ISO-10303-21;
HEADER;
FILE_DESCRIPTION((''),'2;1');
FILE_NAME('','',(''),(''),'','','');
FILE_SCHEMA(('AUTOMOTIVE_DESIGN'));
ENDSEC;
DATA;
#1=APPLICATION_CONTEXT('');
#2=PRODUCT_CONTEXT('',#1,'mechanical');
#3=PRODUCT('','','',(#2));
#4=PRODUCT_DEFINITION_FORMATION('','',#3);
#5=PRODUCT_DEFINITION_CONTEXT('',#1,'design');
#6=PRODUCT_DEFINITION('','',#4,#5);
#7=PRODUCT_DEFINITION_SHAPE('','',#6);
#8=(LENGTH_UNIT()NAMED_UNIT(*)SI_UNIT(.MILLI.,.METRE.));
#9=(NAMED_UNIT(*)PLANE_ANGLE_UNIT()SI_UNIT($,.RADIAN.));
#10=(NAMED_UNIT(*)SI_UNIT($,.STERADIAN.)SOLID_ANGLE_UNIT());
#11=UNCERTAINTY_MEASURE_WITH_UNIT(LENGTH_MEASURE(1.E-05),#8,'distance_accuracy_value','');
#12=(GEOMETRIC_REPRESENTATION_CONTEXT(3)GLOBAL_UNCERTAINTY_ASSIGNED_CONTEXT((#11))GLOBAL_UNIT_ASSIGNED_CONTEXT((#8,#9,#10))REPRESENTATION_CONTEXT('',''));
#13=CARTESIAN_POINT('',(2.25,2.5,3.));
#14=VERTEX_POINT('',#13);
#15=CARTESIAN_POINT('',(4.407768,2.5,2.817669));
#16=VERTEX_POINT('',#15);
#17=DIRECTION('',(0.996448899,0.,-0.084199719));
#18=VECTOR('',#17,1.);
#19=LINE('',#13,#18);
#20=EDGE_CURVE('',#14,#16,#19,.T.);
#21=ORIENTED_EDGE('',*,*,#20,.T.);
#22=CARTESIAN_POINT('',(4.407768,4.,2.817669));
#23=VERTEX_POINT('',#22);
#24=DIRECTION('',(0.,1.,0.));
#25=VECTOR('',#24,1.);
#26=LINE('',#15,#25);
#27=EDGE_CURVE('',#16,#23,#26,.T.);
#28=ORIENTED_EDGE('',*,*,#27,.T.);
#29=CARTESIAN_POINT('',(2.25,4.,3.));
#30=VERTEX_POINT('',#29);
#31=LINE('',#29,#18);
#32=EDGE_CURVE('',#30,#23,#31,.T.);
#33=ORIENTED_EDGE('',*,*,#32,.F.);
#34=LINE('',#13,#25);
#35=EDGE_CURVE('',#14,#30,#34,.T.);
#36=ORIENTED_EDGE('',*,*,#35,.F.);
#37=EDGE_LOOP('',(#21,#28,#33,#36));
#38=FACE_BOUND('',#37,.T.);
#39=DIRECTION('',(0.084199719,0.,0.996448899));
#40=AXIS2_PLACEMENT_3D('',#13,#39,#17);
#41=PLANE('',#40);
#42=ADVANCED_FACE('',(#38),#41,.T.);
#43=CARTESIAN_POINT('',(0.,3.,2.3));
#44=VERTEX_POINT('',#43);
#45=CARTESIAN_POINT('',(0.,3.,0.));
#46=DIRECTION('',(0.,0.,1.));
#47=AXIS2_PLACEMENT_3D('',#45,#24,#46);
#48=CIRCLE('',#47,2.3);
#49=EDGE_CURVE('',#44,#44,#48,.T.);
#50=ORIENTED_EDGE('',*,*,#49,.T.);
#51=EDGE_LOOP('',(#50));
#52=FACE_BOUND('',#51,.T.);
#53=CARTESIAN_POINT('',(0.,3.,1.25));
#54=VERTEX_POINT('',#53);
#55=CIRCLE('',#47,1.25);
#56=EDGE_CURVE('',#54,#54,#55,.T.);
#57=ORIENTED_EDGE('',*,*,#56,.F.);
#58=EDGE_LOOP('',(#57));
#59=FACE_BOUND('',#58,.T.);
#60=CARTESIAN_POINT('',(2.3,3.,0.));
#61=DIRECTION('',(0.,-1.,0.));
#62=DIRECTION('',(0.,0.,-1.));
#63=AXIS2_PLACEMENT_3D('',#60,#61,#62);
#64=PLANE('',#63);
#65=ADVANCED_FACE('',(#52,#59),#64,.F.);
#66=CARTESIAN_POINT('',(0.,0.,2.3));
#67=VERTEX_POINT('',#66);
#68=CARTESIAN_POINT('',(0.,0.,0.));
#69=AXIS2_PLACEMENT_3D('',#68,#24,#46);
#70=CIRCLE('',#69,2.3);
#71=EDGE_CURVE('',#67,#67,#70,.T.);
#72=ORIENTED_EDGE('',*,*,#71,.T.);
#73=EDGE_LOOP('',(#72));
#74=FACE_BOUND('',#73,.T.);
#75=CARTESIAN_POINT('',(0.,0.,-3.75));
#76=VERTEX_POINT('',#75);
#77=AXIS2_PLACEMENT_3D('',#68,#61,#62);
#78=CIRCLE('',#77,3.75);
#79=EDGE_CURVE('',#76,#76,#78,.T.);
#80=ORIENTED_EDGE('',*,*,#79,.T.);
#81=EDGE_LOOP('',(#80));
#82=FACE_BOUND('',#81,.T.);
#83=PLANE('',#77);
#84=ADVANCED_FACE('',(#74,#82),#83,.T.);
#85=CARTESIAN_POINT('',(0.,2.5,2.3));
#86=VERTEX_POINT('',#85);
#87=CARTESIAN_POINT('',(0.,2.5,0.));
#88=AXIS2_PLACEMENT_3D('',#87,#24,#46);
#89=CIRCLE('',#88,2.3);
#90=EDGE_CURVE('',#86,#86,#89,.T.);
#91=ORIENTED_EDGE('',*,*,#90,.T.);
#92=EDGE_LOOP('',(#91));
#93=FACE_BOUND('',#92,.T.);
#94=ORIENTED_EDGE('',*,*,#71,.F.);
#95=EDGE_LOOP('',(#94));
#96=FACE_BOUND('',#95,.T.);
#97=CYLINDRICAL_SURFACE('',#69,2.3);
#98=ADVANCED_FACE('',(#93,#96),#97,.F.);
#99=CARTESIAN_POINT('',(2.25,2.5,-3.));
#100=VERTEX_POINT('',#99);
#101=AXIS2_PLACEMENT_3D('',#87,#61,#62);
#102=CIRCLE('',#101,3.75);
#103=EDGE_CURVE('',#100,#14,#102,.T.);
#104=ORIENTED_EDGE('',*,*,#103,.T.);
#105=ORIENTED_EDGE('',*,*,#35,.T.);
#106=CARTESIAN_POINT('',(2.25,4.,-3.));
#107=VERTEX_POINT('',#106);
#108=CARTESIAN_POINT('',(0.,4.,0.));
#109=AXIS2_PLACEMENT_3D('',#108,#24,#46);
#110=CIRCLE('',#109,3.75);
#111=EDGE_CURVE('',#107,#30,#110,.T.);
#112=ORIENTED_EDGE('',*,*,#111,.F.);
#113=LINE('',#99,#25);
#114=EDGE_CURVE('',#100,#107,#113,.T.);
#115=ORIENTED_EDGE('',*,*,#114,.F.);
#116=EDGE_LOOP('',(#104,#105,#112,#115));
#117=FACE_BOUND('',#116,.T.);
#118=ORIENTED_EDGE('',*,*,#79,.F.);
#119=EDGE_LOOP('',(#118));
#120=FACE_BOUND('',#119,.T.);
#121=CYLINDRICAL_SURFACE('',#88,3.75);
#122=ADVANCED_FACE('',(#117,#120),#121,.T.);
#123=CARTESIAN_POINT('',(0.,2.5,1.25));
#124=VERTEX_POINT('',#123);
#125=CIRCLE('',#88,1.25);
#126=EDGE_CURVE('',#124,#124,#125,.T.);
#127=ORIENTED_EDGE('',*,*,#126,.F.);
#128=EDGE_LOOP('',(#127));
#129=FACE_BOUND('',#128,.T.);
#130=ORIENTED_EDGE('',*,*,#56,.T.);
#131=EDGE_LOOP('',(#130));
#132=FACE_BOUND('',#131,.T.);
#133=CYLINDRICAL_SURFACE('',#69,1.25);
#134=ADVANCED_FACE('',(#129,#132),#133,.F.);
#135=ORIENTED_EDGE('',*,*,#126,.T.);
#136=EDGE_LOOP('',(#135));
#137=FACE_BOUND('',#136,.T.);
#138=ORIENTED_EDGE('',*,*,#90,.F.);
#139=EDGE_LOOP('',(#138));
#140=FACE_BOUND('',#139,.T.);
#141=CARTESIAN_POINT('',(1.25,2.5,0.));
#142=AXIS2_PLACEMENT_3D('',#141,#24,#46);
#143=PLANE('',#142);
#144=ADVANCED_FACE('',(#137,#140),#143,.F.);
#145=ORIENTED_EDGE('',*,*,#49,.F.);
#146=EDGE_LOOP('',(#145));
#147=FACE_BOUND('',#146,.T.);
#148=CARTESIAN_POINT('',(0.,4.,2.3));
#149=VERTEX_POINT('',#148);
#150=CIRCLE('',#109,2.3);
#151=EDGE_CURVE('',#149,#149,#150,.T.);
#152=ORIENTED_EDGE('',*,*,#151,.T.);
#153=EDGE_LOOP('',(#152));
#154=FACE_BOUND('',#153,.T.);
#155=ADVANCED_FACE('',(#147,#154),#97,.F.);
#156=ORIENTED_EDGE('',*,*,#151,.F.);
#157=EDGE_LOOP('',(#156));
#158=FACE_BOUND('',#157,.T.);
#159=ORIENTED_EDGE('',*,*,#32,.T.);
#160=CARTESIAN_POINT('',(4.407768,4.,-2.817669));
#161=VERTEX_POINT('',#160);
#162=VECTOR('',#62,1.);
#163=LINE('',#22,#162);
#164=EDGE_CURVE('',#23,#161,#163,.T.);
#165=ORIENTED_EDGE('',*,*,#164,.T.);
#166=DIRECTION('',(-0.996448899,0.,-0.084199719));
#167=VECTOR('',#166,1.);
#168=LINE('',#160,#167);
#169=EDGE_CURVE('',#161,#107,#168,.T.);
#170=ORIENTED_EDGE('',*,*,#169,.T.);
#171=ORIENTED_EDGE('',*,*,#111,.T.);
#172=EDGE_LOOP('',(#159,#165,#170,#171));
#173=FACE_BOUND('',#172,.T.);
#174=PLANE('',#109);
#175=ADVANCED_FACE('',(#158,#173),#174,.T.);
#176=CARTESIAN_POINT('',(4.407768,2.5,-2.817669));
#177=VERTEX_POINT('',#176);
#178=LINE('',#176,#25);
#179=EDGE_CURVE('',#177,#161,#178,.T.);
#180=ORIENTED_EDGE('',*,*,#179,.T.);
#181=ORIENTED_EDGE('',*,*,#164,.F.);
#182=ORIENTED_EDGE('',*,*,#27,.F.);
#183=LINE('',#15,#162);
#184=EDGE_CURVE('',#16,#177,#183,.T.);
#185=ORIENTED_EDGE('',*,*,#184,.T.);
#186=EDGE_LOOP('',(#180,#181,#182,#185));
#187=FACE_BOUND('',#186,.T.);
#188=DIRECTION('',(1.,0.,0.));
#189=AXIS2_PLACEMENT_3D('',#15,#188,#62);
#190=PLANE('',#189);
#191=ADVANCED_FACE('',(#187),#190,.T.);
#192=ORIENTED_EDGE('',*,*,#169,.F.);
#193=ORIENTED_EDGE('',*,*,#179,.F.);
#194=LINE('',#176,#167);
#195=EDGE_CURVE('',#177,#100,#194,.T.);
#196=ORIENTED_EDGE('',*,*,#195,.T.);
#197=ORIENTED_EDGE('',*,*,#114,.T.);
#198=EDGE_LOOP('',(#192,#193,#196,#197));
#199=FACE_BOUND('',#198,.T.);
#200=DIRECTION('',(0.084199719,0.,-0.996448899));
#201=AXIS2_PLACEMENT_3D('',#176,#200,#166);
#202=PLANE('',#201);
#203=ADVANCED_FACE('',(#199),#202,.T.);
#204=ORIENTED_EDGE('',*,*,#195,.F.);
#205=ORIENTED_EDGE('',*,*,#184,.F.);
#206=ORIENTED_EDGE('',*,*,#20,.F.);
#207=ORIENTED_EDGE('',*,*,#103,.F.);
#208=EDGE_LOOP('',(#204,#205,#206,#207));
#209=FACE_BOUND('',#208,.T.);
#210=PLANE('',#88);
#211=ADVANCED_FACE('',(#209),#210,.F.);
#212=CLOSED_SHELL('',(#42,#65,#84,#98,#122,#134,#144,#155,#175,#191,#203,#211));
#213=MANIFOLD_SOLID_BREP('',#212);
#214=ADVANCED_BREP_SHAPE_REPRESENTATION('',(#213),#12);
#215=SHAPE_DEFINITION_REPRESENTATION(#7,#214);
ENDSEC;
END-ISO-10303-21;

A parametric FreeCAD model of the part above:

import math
import FreeCAD as App
import Part
import Sketcher
from FreeCAD import Vector
Q = App.Units.Quantity


def add_polygon(sketch, points):
    """Adds a closed chain of lines whose ends are joined by coincident constraints."""
    first, n = sketch.GeometryCount, len(points)
    for a, b in zip(points, points[1:] + points[:1]):
        sketch.addGeometry(Part.LineSegment(App.Vector(*a, 0), App.Vector(*b, 0)), False)
    for i in range(n):
        sketch.addConstraint(Sketcher.Constraint("Coincident", first + i, 2, first + (i + 1) % n, 1))

doc = App.newDocument("Part")
params = doc.addObject("Spreadsheet::Sheet", "Params")
for row, (alias, value) in enumerate([
    ("sketch1_radius", "3.75 mm"),
    ("pad1_length", "1.5 mm"),
    ("sketch2_diameter", "7.5 mm"),
    ("pad2_length", "2.5 mm"),
    ("sketch3_height", "4 mm"),
    ("sketch3_height2", "1 mm"),
    ("sketch3_width", "2.3 mm"),
    ("sketch3_height3", "0.5 mm"),
    ("sketch3_width2", "1.05 mm"),
    ("groove_angle", "360 deg"),
], start=1):
    params.set(f"A{row}", alias)
    params.set(f"B{row}", "=" + value)
    params.setAlias(f"B{row}", alias)

body = doc.addObject("PartDesign::Body", "Body")

sketch1 = body.newObject("Sketcher::SketchObject", "Sketch")
sketch1.AttachmentSupport = (doc.getObject("XZ_Plane"), [""])
sketch1.MapMode = "FlatFace"
sketch1.AttachmentOffset = App.Placement(Vector(0, 0, -4), App.Rotation())
sketch1.addGeometry(Part.LineSegment(Vector(2.25, 3, 0), Vector(4.407768, 2.817669, 0)), False)
sketch1.addGeometry(Part.LineSegment(Vector(4.407768, 2.817669, 0), Vector(4.407768, -2.817669, 0)), False)
sketch1.addGeometry(Part.LineSegment(Vector(4.407768, -2.817669, 0), Vector(2.25, -3, 0)), False)
sketch1.addGeometry(Part.ArcOfCircle(Part.Circle(Vector(0, 0, 0), Vector(0, 0, 1), 3.75), math.radians(53.130102), math.radians(306.869898)), False)
sketch1.addConstraint(Sketcher.Constraint("Coincident", 0, 2, 1, 1))
sketch1.addConstraint(Sketcher.Constraint("Coincident", 1, 2, 2, 1))
sketch1.addConstraint(Sketcher.Constraint("Coincident", 2, 2, 3, 2))
sketch1.addConstraint(Sketcher.Constraint("Coincident", 3, 1, 0, 1))
sketch1.addConstraint(Sketcher.Constraint("Vertical", 1))
sketch1.addConstraint(Sketcher.Constraint("Coincident", 3, 3, -1, 1))
sketch1.addConstraint(Sketcher.Constraint("Vertical", 2, 2, 3, 1))
sketch1.addConstraint(Sketcher.Constraint("Equal", 0, 2))
sketch1.addConstraint(Sketcher.Constraint("Radius", 3, Q("3.75 mm")))
sketch1.addConstraint(Sketcher.Constraint("DistanceY", 2, 2, -1, 1, Q("3 mm")))
sketch1.addConstraint(Sketcher.Constraint("Angle", 0, Q("-4.830007 deg")))
sketch1.addConstraint(Sketcher.Constraint("DistanceY", 1, 2, 1, 1, Q("5.635338 mm")))
sketch1.setExpression("Constraints[8]", "Params.sketch1_radius")
pad1 = body.newObject("PartDesign::Pad", "Pad")
pad1.Profile = sketch1
pad1.setExpression("Length", "Params.pad1_length")

sketch2 = body.newObject("Sketcher::SketchObject", "Sketch001")
sketch2.AttachmentSupport = (doc.getObject("XZ_Plane"), [""])
sketch2.MapMode = "FlatFace"
sketch2.AttachmentOffset = App.Placement(Vector(0, 0, -2.5), App.Rotation())
sketch2.addGeometry(Part.Circle(Vector(0, 0, 0), Vector(0, 0, 1), 3.75), False)
sketch2.addConstraint(Sketcher.Constraint("Coincident", 0, 3, -1, 1))
sketch2.addConstraint(Sketcher.Constraint("Diameter", 0, Q("7.5 mm")))
sketch2.setExpression("Constraints[1]", "Params.sketch2_diameter")
pad2 = body.newObject("PartDesign::Pad", "Pad001")
pad2.Profile = sketch2
pad2.setExpression("Length", "Params.pad2_length")

sketch3 = body.newObject("Sketcher::SketchObject", "Sketch002")
sketch3.AttachmentSupport = (doc.getObject("XY_Plane"), [""])
sketch3.MapMode = "FlatFace"
add_polygon(sketch3, [(2.3, 0), (0, 0), (0, 4), (2.3, 4), (2.3, 3), (1.25, 3), (1.25, 2.5), (2.3, 2.5)])
sketch3.addConstraint(Sketcher.Constraint("Horizontal", 0))
sketch3.addConstraint(Sketcher.Constraint("Vertical", 1))
sketch3.addConstraint(Sketcher.Constraint("Horizontal", 2))
sketch3.addConstraint(Sketcher.Constraint("Vertical", 3))
sketch3.addConstraint(Sketcher.Constraint("Horizontal", 4))
sketch3.addConstraint(Sketcher.Constraint("Vertical", 5))
sketch3.addConstraint(Sketcher.Constraint("Horizontal", 6))
sketch3.addConstraint(Sketcher.Constraint("Vertical", 7))
sketch3.addConstraint(Sketcher.Constraint("Coincident", 0, 2, -1, 1))
sketch3.addConstraint(Sketcher.Constraint("Vertical", 3, 2, 6, 2))
sketch3.addConstraint(Sketcher.Constraint("DistanceY", 1, 1, 1, 2, Q("4 mm")))
sketch3.addConstraint(Sketcher.Constraint("DistanceY", 3, 2, 3, 1, Q("1 mm")))
sketch3.addConstraint(Sketcher.Constraint("DistanceX", 0, 2, 0, 1, Q("2.3 mm")))
sketch3.addConstraint(Sketcher.Constraint("DistanceY", 5, 2, 5, 1, Q("0.5 mm")))
sketch3.addConstraint(Sketcher.Constraint("DistanceX", 4, 2, 4, 1, Q("1.05 mm")))
sketch3.setExpression("Constraints[18]", "Params.sketch3_height")
sketch3.setExpression("Constraints[19]", "Params.sketch3_height2")
sketch3.setExpression("Constraints[20]", "Params.sketch3_width")
sketch3.setExpression("Constraints[21]", "Params.sketch3_height3")
sketch3.setExpression("Constraints[22]", "Params.sketch3_width2")
groove = body.newObject("PartDesign::Groove", "Groove")
groove.Profile = sketch3
groove.ReferenceAxis = (sketch3, ["V_Axis"])
groove.setExpression("Angle", "Params.groove_angle")

doc.recompute()
